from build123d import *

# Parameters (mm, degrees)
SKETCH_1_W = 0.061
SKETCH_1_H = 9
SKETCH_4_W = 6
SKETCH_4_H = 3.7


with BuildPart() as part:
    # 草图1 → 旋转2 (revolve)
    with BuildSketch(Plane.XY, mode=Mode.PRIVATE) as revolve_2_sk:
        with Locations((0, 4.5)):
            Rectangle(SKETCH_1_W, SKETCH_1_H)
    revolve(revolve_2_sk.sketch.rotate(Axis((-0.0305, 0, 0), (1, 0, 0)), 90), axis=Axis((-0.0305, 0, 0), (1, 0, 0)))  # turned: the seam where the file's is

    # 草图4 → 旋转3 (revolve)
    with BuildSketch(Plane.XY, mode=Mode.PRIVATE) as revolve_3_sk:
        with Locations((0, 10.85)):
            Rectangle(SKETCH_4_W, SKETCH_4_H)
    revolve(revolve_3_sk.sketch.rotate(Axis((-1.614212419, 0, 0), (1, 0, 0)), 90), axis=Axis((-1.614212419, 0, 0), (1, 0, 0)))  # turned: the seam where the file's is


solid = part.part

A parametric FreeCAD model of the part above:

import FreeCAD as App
import Part
import Sketcher

V = App.Vector
Q = App.Units.Quantity


def add_polygon(sketch, points):
    """Adds a closed chain of lines whose ends are joined by coincident constraints."""
    first, n = sketch.GeometryCount, len(points)
    for a, b in zip(points, points[1:] + points[:1]):
        sketch.addGeometry(Part.LineSegment(App.Vector(*a, 0), App.Vector(*b, 0)), False)
    for i in range(n):
        sketch.addConstraint(Sketcher.Constraint("Coincident", first + i, 2, first + (i + 1) % n, 1))

doc = App.newDocument("Part")
body = doc.addObject("PartDesign::Body", "Body")

sketch1 = body.newObject("Sketcher::SketchObject", "Sketch")
sketch1.AttachmentSupport = (doc.getObject("XY_Plane"), [""])
sketch1.MapMode = "FlatFace"
add_polygon(sketch1, [(-0.03, 9), (-0.03, 0), (0.03, 0), (0.03, 9)])
sketch1.addConstraint([
    Sketcher.Constraint("Vertical", 0),
    Sketcher.Constraint("Horizontal", 1),
    Sketcher.Constraint("Vertical", 2),
    Sketcher.Constraint("Horizontal", 3),
    Sketcher.Constraint("Symmetric", 0, 2, 1, 2, -1, 1),
    Sketcher.Constraint("DistanceY", 0, 2, 0, 1, Q("9 mm")),
    Sketcher.Constraint("DistanceX", 1, 1, 1, 2, Q("0.061 mm")),
])
revolution = body.newObject("PartDesign::Revolution", "Revolution")
revolution.Profile = sketch1
revolution.ReferenceAxis = (sketch1, ["H_Axis"])
revolution.Angle = 360

sketch2 = body.newObject("Sketcher::SketchObject", "Sketch001")
sketch2.AttachmentSupport = (doc.getObject("XY_Plane"), [""])
sketch2.MapMode = "FlatFace"
add_polygon(sketch2, [(-3, 12.7), (-3, 9), (3, 9), (3, 12.7)])
sketch2.addConstraint([
    Sketcher.Constraint("Vertical", 0),
    Sketcher.Constraint("Horizontal", 1),
    Sketcher.Constraint("Vertical", 2),
    Sketcher.Constraint("Horizontal", 3),
    Sketcher.Constraint("DistanceX", 1, 1, 1, 2, Q("6 mm")),
    Sketcher.Constraint("DistanceY", 0, 2, 0, 1, Q("3.7 mm")),
    Sketcher.Constraint("DistanceX", 0, 2, -1, 1, Q("3 mm")),
    Sketcher.Constraint("DistanceY", -1, 1, 0, 2, Q("9 mm")),
])
revolution2 = body.newObject("PartDesign::Revolution", "Revolution001")
revolution2.Profile = sketch2
revolution2.ReferenceAxis = (sketch2, ["H_Axis"])
revolution2.Angle = 360

doc.recompute()
